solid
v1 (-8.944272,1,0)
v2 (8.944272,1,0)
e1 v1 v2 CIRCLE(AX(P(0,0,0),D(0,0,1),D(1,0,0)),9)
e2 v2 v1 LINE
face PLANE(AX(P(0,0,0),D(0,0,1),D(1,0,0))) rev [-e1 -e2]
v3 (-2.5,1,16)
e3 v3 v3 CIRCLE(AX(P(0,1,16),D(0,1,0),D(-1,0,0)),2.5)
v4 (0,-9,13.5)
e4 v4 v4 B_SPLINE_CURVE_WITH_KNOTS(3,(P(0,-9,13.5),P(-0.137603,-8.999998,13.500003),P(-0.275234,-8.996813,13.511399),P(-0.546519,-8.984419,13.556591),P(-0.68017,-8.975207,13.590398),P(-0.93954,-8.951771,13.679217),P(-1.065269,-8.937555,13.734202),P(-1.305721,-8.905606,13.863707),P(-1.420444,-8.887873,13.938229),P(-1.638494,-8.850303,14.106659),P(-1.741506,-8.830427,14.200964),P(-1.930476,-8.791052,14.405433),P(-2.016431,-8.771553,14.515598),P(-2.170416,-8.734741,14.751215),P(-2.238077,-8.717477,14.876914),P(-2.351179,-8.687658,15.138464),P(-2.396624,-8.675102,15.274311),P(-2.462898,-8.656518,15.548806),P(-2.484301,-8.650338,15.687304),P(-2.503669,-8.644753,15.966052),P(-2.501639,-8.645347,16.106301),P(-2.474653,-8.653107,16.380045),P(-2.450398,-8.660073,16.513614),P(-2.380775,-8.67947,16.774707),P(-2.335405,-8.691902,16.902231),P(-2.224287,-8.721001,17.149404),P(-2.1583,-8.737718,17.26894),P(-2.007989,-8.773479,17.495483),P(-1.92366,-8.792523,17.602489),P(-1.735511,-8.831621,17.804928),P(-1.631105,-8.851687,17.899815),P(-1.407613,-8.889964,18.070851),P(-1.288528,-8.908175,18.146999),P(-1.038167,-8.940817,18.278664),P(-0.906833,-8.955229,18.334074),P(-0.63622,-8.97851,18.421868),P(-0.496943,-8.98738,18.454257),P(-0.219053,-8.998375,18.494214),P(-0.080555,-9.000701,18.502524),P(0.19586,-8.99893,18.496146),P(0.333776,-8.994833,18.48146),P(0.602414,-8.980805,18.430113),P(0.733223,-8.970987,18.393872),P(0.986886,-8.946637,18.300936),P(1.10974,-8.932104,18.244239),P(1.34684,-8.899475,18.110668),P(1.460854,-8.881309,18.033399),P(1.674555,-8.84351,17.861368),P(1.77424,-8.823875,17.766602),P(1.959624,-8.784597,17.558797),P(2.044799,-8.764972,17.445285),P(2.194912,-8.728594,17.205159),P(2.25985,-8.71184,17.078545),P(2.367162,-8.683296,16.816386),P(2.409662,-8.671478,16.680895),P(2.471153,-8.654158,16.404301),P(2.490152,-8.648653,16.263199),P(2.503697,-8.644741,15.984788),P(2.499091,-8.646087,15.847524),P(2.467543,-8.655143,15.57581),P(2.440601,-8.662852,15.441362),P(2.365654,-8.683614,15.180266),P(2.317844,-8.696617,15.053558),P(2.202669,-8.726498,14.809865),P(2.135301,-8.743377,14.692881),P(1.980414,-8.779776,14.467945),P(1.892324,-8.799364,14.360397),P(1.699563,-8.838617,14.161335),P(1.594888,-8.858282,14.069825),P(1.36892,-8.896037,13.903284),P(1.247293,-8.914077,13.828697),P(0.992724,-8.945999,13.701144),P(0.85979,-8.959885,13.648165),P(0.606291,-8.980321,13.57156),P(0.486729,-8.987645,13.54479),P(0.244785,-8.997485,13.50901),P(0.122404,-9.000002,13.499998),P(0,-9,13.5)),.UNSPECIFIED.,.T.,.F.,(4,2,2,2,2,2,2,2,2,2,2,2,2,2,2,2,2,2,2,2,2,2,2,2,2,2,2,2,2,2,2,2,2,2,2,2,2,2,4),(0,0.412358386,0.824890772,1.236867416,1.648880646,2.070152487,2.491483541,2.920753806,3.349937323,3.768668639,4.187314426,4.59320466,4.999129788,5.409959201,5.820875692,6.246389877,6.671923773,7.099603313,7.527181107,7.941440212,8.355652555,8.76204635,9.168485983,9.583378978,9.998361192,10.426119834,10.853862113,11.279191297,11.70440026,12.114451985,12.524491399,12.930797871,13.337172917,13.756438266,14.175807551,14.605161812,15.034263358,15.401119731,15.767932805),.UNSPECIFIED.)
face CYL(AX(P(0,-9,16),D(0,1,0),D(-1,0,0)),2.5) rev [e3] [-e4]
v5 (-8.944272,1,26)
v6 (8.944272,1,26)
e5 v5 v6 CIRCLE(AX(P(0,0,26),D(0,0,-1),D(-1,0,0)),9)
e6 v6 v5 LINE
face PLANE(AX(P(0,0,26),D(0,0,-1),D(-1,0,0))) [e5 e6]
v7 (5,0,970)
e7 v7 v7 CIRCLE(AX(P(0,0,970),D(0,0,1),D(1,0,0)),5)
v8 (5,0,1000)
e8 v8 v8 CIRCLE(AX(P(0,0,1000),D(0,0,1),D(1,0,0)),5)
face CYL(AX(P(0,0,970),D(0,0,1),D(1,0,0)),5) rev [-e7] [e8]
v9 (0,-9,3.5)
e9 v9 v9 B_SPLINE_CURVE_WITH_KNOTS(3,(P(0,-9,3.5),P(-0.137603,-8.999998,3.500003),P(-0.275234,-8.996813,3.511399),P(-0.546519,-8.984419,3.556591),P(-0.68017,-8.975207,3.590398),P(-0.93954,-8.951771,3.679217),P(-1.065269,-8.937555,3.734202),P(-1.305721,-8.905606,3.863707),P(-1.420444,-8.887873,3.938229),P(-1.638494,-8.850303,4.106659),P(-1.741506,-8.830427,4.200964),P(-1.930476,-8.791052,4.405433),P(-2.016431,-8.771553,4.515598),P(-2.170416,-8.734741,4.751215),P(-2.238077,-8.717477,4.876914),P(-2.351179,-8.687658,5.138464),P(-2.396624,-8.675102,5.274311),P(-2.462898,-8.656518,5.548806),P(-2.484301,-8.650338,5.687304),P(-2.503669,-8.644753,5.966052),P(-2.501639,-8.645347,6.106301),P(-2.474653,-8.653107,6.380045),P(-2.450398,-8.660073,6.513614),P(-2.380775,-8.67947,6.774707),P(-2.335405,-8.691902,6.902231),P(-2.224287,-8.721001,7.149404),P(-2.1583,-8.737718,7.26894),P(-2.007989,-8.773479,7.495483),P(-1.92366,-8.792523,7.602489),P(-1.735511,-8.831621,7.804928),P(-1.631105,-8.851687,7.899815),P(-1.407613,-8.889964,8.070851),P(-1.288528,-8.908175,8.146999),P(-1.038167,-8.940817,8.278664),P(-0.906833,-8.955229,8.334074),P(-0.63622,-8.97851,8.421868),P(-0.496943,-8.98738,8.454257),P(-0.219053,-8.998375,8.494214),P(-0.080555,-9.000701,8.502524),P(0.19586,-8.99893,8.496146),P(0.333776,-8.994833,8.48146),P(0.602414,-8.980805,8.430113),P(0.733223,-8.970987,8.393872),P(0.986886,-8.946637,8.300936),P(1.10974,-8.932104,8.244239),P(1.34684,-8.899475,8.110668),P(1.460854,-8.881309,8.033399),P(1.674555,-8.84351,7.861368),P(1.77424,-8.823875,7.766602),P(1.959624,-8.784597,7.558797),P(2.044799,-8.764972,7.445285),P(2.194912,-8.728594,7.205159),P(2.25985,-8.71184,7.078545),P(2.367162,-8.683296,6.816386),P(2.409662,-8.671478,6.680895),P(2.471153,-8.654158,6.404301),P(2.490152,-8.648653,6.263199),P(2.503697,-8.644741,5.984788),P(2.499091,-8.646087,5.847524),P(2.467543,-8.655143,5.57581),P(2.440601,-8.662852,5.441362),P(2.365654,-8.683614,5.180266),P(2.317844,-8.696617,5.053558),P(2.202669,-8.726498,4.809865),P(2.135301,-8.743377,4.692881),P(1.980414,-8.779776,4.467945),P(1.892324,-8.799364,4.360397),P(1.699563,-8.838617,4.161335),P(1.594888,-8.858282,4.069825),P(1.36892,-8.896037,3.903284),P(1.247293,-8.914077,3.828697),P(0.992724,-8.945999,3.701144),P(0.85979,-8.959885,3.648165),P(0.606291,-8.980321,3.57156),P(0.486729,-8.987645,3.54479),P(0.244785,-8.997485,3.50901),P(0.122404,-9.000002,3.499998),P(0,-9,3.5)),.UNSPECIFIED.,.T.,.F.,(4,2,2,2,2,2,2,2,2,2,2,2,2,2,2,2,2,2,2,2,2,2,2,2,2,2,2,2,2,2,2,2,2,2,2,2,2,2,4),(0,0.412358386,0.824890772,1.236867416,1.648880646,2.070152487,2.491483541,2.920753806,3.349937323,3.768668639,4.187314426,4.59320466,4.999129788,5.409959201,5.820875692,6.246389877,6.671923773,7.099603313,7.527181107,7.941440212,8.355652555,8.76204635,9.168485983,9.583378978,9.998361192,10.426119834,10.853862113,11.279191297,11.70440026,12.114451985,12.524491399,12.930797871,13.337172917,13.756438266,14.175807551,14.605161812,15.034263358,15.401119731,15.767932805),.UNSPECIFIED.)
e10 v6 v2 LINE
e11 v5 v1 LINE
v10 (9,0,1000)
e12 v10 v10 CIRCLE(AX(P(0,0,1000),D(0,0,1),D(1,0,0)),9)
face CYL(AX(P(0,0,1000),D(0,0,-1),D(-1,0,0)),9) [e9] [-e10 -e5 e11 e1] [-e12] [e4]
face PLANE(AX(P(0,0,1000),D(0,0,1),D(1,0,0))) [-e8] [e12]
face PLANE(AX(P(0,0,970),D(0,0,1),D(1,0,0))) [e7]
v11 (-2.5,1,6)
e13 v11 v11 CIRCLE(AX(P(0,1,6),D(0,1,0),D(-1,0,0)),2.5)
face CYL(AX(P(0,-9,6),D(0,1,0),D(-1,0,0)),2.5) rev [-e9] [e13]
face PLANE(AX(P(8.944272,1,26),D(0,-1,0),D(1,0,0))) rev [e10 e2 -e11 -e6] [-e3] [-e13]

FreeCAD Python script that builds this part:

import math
import FreeCAD as App
import Part
import Sketcher

doc = App.newDocument("Part")
body = doc.addObject("PartDesign::Body", "Body")

# Sketch on XY plane
sketch1 = body.newObject("Sketcher::SketchObject", "Sketch")
sketch1.AttachmentSupport = (doc.getObject("XY_Plane"), [""])
sketch1.MapMode = "FlatFace"
sketch1.addGeometry(Part.Circle(App.Vector(0, 0, 0), App.Vector(0, 0, 1), 9), False)
sketch1.addConstraint([
    Sketcher.Constraint("Coincident", 0, 3, -1, 1),
    Sketcher.Constraint("Diameter", 0, 18.0),
])
pad1 = body.newObject("PartDesign::Pad", "Pad")
pad1.Profile = sketch1
pad1.Length = 1000

# Sketch on XY plane
sketch2 = body.newObject("Sketcher::SketchObject", "Sketch001")
sketch2.AttachmentSupport = (doc.getObject("XY_Plane"), [""])
sketch2.MapMode = "FlatFace"
sketch2.AttachmentOffset = App.Placement(App.Vector(0, 0, 1000), App.Rotation())
sketch2.addGeometry(Part.Circle(App.Vector(0, 0, 0), App.Vector(0, 0, 1), 5), False)
sketch2.addConstraint([
    Sketcher.Constraint("Coincident", 0, 3, -1, 1),
    Sketcher.Constraint("Diameter", 0, 10.0),
])
pocket1 = body.newObject("PartDesign::Pocket", "Pocket")
pocket1.Profile = sketch2
pocket1.Length = 30

# Sketch on XY plane
sketch3 = body.newObject("Sketcher::SketchObject", "Sketch002")
sketch3.AttachmentSupport = (doc.getObject("XY_Plane"), [""])
sketch3.MapMode = "FlatFace"
sketch3.addGeometry([
    Part.LineSegment(App.Vector(8.944272, 1, 0), App.Vector(-8.944272, 1, 0)),
    Part.ArcOfCircle(Part.Circle(App.Vector(0, 0, 0), App.Vector(0, 0, 1), 9), math.radians(90), math.radians(173.62063)),
    Part.ArcOfCircle(Part.Circle(App.Vector(0, 0, 0), App.Vector(0, 0, 1), 9), math.radians(6.37937), math.radians(90)),
], False)
sketch3.addConstraint([
    Sketcher.Constraint("Coincident", 0, 2, 1, 2),
    Sketcher.Constraint("Tangent", 1, 1, 2, 2),
    Sketcher.Constraint("Coincident", 2, 1, 0, 1),
    Sketcher.Constraint("Horizontal", 0),
    Sketcher.Constraint("Coincident", 1, 3, -1, 1),
    Sketcher.Constraint("Equal", 1, 2),
    Sketcher.Constraint("PointOnObject", 1, 1, -2),
    Sketcher.Constraint("Radius", 1, 9.0),
    Sketcher.Constraint("DistanceY", -1, 1, 0, 2, 1.0),
])
pocket2 = body.newObject("PartDesign::Pocket", "Pocket001")
pocket2.Profile = sketch3
pocket2.Length = 26
pocket2.Reversed = True

# Sketch on XZ plane
sketch4 = body.newObject("Sketcher::SketchObject", "Sketch003")
sketch4.AttachmentSupport = (doc.getObject("XZ_Plane"), [""])
sketch4.MapMode = "FlatFace"
sketch4.AttachmentOffset = App.Placement(App.Vector(0, 0, -1), App.Rotation())
sketch4.addGeometry([
    Part.Circle(App.Vector(0, 6, 0), App.Vector(0, 0, 1), 2.5),
    Part.Circle(App.Vector(0, 16, 0), App.Vector(0, 0, 1), 2.5),
], False)
sketch4.addConstraint([
    Sketcher.Constraint("Equal", 0, 1),
    Sketcher.Constraint("PointOnObject", 0, 3, -2),
    Sketcher.Constraint("PointOnObject", 1, 3, -2),
    Sketcher.Constraint("Diameter", 0, 5.0),
    Sketcher.Constraint("DistanceY", -1, 1, 0, 3, 6.0),
    Sketcher.Constraint("DistanceY", -1, 1, 1, 3, 16.0),
])
pocket3 = body.newObject("PartDesign::Pocket", "Pocket002")
pocket3.Profile = sketch4
pocket3.Length = 10
pocket3.Reversed = True

doc.recompute()
